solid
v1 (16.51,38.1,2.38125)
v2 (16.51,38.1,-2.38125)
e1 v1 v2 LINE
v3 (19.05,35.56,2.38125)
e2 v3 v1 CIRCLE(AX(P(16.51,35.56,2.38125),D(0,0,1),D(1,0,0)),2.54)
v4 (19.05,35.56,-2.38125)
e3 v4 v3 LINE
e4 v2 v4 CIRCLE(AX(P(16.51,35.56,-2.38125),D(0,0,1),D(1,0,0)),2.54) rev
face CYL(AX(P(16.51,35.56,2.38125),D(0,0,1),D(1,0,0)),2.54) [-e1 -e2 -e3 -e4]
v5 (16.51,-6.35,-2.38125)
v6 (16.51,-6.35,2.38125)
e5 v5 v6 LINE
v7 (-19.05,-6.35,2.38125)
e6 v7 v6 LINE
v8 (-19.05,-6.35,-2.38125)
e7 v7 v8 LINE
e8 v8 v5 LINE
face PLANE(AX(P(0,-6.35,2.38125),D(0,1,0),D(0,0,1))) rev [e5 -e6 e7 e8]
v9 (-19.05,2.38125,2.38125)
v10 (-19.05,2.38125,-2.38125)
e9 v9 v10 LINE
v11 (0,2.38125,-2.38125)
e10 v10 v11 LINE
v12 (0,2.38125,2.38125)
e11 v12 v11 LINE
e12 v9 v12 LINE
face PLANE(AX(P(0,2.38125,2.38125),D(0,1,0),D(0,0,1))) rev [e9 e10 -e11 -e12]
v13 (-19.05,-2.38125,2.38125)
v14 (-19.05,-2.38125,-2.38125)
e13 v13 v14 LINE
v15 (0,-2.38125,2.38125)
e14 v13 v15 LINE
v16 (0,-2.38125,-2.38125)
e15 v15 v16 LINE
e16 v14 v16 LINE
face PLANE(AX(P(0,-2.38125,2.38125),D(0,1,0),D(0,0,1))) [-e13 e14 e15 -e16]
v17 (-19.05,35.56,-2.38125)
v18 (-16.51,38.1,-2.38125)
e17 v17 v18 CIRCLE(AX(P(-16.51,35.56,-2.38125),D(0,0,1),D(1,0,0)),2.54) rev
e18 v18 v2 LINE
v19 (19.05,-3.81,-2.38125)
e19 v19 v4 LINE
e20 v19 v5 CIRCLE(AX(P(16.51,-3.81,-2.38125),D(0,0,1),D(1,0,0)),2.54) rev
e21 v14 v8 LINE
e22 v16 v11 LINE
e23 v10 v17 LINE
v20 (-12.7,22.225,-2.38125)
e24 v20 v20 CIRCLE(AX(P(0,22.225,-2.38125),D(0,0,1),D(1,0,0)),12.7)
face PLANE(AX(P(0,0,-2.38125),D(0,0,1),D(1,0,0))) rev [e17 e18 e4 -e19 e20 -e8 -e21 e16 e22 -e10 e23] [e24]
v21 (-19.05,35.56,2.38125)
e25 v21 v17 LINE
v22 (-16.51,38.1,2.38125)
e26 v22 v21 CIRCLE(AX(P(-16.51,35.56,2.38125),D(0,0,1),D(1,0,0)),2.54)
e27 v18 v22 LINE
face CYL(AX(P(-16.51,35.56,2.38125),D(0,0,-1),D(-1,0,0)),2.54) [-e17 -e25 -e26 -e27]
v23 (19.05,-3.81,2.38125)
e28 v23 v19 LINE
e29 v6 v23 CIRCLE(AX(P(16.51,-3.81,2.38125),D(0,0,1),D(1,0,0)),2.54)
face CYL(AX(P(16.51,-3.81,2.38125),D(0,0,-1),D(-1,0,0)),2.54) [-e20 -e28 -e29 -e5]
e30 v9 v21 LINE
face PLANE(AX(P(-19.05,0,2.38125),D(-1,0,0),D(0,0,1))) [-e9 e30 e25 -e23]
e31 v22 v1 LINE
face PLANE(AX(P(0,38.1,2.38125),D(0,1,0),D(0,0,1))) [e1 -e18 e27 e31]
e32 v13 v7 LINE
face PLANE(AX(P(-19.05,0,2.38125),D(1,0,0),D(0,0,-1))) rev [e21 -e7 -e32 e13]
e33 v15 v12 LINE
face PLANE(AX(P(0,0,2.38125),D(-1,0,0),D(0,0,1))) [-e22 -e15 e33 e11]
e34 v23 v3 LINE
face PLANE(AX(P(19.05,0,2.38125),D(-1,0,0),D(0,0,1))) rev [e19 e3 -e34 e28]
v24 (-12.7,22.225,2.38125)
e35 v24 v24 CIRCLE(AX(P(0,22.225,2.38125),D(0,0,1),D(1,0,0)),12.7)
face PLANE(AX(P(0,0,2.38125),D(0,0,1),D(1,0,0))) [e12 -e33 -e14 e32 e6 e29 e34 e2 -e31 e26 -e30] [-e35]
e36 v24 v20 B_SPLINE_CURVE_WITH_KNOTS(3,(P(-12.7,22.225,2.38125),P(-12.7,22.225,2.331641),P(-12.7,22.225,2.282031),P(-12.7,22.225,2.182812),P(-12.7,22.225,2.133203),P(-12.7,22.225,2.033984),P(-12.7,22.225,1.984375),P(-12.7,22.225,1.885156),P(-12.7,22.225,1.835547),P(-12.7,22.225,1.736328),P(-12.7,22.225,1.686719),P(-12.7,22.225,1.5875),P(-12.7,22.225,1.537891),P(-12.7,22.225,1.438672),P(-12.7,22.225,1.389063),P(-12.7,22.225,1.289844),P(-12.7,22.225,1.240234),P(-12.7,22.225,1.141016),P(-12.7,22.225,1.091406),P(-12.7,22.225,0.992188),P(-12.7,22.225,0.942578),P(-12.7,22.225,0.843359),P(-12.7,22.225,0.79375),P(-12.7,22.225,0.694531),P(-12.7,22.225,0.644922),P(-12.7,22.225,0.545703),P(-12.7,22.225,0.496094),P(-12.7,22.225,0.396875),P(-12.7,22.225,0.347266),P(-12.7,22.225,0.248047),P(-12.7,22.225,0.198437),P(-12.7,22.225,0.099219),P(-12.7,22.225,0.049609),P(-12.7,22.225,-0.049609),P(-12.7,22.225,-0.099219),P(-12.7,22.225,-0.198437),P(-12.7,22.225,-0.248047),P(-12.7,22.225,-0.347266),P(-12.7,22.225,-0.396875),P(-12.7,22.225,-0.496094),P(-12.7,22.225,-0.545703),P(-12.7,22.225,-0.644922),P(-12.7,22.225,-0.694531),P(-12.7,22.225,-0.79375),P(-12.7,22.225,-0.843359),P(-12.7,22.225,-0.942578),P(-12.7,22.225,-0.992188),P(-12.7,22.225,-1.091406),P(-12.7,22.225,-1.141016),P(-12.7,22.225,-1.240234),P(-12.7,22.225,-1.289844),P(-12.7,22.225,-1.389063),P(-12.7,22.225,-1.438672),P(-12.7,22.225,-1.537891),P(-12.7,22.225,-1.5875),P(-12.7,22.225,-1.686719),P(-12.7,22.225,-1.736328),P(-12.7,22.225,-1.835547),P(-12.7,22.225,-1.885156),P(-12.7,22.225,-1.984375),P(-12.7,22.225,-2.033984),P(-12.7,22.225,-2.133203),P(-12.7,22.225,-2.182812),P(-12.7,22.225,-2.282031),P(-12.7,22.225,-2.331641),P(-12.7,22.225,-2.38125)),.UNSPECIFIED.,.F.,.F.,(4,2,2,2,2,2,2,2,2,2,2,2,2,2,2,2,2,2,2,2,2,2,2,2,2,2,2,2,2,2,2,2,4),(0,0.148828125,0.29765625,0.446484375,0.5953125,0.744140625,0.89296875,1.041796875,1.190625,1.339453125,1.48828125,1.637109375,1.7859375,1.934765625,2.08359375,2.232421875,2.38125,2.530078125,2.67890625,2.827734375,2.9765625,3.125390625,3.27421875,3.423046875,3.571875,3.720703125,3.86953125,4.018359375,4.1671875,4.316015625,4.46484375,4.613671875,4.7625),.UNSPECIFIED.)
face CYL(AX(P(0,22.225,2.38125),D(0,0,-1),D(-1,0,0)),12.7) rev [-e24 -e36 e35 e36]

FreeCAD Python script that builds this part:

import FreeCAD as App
import Part
import Sketcher
Q = App.Units.Quantity


def edges_at(feature, points):
    """Names of the edges that pass closest to the given points."""
    edges = feature.Shape.Edges
    near = lambda p: min(range(len(edges)), key=lambda i: edges[i].distToShape(Part.Vertex(*p))[0])
    return sorted({f"Edge{near(p) + 1}" for p in points})

doc = App.newDocument("Part")
body = doc.addObject("PartDesign::Body", "Body")

# Sketch on XY plane
sketch1 = doc.addObject("Sketcher::SketchObject", "Sketch")
body.addObject(sketch1)
sketch1.AttachmentSupport = (doc.XY_Plane, [""])
sketch1.MapMode = "FlatFace"
sketch1.addGeometry([
    Part.LineSegment(App.Vector(-19.1, 2.4, 0), App.Vector(0, 2.4, 0)),  # 0
    Part.LineSegment(App.Vector(0, 2.4, 0), App.Vector(0, -2.4, 0)),  # 1
    Part.LineSegment(App.Vector(0, -2.4, 0), App.Vector(-19.1, -2.4, 0)),  # 2
    Part.LineSegment(App.Vector(-19.1, -2.4, 0), App.Vector(-19.1, -6.3, 0)),  # 3
    Part.LineSegment(App.Vector(-19.1, -6.3, 0), App.Vector(19.1, -6.3, 0)),  # 4
    Part.LineSegment(App.Vector(19.1, -6.3, 0), App.Vector(19.1, 38.1, 0)),  # 5
    Part.LineSegment(App.Vector(19.1, 38.1, 0), App.Vector(-19.1, 38.1, 0)),  # 6
    Part.LineSegment(App.Vector(-19.1, 38.1, 0), App.Vector(-19.1, 2.4, 0)),  # 7
    Part.Circle(App.Vector(0, 22.2, 0), App.Vector(0, 0, 1), 12.7),  # 8
], False)
sketch1.addConstraint([
    Sketcher.Constraint("Coincident", 0, 2, 1, 1),
    Sketcher.Constraint("Coincident", 1, 2, 2, 1),
    Sketcher.Constraint("Coincident", 2, 2, 3, 1),
    Sketcher.Constraint("Coincident", 3, 2, 4, 1),
    Sketcher.Constraint("Coincident", 4, 2, 5, 1),
    Sketcher.Constraint("Coincident", 5, 2, 6, 1),
    Sketcher.Constraint("Coincident", 6, 2, 7, 1),
    Sketcher.Constraint("Coincident", 7, 2, 0, 1),
    Sketcher.Constraint("Horizontal", 0),
    Sketcher.Constraint("Vertical", 1),
    Sketcher.Constraint("Horizontal", 2),
    Sketcher.Constraint("Vertical", 3),
    Sketcher.Constraint("Horizontal", 4),
    Sketcher.Constraint("Vertical", 5),
    Sketcher.Constraint("Horizontal", 6),
    Sketcher.Constraint("Vertical", 7),
    Sketcher.Constraint("Symmetric", 0, 2, 1, 2, -1, 1),
    Sketcher.Constraint("PointOnObject", 8, 3, -2),
    Sketcher.Constraint("Vertical", 3, 2, 6, 2),
    Sketcher.Constraint("Diameter", 8, Q("1 in")),
    Sketcher.Constraint("DistanceX", 4, 1, 4, 2, Q("1.5 in")),
    Sketcher.Constraint("DistanceX", 0, 1, 0, 2, Q("0.75 in")),
    Sketcher.Constraint("DistanceY", 5, 1, 5, 2, Q("1.75 in")),
    Sketcher.Constraint("DistanceY", -1, 1, 5, 2, Q("1.5 in")),
    Sketcher.Constraint("DistanceY", 1, 2, 1, 1, Q("0.1875 in")),
    Sketcher.Constraint("DistanceY", -1, 1, 8, 3, Q("0.875 in")),
])
pad1 = doc.addObject("PartDesign::Pad", "Pad")
body.addObject(pad1)
pad1.Profile = sketch1
pad1.Length = Q("0.1875 in")
pad1.Midplane = True
doc.recompute()

fillet = doc.addObject("PartDesign::Fillet", "Fillet")
body.addObject(fillet)
fillet.Base = (pad1, edges_at(pad1, [(-19.05, 38.1, 0), (19.05, 38.1, 0), (19.05, -6.35, 1.191)]))
fillet.Radius = Q("0.1 in")

doc.recompute()
